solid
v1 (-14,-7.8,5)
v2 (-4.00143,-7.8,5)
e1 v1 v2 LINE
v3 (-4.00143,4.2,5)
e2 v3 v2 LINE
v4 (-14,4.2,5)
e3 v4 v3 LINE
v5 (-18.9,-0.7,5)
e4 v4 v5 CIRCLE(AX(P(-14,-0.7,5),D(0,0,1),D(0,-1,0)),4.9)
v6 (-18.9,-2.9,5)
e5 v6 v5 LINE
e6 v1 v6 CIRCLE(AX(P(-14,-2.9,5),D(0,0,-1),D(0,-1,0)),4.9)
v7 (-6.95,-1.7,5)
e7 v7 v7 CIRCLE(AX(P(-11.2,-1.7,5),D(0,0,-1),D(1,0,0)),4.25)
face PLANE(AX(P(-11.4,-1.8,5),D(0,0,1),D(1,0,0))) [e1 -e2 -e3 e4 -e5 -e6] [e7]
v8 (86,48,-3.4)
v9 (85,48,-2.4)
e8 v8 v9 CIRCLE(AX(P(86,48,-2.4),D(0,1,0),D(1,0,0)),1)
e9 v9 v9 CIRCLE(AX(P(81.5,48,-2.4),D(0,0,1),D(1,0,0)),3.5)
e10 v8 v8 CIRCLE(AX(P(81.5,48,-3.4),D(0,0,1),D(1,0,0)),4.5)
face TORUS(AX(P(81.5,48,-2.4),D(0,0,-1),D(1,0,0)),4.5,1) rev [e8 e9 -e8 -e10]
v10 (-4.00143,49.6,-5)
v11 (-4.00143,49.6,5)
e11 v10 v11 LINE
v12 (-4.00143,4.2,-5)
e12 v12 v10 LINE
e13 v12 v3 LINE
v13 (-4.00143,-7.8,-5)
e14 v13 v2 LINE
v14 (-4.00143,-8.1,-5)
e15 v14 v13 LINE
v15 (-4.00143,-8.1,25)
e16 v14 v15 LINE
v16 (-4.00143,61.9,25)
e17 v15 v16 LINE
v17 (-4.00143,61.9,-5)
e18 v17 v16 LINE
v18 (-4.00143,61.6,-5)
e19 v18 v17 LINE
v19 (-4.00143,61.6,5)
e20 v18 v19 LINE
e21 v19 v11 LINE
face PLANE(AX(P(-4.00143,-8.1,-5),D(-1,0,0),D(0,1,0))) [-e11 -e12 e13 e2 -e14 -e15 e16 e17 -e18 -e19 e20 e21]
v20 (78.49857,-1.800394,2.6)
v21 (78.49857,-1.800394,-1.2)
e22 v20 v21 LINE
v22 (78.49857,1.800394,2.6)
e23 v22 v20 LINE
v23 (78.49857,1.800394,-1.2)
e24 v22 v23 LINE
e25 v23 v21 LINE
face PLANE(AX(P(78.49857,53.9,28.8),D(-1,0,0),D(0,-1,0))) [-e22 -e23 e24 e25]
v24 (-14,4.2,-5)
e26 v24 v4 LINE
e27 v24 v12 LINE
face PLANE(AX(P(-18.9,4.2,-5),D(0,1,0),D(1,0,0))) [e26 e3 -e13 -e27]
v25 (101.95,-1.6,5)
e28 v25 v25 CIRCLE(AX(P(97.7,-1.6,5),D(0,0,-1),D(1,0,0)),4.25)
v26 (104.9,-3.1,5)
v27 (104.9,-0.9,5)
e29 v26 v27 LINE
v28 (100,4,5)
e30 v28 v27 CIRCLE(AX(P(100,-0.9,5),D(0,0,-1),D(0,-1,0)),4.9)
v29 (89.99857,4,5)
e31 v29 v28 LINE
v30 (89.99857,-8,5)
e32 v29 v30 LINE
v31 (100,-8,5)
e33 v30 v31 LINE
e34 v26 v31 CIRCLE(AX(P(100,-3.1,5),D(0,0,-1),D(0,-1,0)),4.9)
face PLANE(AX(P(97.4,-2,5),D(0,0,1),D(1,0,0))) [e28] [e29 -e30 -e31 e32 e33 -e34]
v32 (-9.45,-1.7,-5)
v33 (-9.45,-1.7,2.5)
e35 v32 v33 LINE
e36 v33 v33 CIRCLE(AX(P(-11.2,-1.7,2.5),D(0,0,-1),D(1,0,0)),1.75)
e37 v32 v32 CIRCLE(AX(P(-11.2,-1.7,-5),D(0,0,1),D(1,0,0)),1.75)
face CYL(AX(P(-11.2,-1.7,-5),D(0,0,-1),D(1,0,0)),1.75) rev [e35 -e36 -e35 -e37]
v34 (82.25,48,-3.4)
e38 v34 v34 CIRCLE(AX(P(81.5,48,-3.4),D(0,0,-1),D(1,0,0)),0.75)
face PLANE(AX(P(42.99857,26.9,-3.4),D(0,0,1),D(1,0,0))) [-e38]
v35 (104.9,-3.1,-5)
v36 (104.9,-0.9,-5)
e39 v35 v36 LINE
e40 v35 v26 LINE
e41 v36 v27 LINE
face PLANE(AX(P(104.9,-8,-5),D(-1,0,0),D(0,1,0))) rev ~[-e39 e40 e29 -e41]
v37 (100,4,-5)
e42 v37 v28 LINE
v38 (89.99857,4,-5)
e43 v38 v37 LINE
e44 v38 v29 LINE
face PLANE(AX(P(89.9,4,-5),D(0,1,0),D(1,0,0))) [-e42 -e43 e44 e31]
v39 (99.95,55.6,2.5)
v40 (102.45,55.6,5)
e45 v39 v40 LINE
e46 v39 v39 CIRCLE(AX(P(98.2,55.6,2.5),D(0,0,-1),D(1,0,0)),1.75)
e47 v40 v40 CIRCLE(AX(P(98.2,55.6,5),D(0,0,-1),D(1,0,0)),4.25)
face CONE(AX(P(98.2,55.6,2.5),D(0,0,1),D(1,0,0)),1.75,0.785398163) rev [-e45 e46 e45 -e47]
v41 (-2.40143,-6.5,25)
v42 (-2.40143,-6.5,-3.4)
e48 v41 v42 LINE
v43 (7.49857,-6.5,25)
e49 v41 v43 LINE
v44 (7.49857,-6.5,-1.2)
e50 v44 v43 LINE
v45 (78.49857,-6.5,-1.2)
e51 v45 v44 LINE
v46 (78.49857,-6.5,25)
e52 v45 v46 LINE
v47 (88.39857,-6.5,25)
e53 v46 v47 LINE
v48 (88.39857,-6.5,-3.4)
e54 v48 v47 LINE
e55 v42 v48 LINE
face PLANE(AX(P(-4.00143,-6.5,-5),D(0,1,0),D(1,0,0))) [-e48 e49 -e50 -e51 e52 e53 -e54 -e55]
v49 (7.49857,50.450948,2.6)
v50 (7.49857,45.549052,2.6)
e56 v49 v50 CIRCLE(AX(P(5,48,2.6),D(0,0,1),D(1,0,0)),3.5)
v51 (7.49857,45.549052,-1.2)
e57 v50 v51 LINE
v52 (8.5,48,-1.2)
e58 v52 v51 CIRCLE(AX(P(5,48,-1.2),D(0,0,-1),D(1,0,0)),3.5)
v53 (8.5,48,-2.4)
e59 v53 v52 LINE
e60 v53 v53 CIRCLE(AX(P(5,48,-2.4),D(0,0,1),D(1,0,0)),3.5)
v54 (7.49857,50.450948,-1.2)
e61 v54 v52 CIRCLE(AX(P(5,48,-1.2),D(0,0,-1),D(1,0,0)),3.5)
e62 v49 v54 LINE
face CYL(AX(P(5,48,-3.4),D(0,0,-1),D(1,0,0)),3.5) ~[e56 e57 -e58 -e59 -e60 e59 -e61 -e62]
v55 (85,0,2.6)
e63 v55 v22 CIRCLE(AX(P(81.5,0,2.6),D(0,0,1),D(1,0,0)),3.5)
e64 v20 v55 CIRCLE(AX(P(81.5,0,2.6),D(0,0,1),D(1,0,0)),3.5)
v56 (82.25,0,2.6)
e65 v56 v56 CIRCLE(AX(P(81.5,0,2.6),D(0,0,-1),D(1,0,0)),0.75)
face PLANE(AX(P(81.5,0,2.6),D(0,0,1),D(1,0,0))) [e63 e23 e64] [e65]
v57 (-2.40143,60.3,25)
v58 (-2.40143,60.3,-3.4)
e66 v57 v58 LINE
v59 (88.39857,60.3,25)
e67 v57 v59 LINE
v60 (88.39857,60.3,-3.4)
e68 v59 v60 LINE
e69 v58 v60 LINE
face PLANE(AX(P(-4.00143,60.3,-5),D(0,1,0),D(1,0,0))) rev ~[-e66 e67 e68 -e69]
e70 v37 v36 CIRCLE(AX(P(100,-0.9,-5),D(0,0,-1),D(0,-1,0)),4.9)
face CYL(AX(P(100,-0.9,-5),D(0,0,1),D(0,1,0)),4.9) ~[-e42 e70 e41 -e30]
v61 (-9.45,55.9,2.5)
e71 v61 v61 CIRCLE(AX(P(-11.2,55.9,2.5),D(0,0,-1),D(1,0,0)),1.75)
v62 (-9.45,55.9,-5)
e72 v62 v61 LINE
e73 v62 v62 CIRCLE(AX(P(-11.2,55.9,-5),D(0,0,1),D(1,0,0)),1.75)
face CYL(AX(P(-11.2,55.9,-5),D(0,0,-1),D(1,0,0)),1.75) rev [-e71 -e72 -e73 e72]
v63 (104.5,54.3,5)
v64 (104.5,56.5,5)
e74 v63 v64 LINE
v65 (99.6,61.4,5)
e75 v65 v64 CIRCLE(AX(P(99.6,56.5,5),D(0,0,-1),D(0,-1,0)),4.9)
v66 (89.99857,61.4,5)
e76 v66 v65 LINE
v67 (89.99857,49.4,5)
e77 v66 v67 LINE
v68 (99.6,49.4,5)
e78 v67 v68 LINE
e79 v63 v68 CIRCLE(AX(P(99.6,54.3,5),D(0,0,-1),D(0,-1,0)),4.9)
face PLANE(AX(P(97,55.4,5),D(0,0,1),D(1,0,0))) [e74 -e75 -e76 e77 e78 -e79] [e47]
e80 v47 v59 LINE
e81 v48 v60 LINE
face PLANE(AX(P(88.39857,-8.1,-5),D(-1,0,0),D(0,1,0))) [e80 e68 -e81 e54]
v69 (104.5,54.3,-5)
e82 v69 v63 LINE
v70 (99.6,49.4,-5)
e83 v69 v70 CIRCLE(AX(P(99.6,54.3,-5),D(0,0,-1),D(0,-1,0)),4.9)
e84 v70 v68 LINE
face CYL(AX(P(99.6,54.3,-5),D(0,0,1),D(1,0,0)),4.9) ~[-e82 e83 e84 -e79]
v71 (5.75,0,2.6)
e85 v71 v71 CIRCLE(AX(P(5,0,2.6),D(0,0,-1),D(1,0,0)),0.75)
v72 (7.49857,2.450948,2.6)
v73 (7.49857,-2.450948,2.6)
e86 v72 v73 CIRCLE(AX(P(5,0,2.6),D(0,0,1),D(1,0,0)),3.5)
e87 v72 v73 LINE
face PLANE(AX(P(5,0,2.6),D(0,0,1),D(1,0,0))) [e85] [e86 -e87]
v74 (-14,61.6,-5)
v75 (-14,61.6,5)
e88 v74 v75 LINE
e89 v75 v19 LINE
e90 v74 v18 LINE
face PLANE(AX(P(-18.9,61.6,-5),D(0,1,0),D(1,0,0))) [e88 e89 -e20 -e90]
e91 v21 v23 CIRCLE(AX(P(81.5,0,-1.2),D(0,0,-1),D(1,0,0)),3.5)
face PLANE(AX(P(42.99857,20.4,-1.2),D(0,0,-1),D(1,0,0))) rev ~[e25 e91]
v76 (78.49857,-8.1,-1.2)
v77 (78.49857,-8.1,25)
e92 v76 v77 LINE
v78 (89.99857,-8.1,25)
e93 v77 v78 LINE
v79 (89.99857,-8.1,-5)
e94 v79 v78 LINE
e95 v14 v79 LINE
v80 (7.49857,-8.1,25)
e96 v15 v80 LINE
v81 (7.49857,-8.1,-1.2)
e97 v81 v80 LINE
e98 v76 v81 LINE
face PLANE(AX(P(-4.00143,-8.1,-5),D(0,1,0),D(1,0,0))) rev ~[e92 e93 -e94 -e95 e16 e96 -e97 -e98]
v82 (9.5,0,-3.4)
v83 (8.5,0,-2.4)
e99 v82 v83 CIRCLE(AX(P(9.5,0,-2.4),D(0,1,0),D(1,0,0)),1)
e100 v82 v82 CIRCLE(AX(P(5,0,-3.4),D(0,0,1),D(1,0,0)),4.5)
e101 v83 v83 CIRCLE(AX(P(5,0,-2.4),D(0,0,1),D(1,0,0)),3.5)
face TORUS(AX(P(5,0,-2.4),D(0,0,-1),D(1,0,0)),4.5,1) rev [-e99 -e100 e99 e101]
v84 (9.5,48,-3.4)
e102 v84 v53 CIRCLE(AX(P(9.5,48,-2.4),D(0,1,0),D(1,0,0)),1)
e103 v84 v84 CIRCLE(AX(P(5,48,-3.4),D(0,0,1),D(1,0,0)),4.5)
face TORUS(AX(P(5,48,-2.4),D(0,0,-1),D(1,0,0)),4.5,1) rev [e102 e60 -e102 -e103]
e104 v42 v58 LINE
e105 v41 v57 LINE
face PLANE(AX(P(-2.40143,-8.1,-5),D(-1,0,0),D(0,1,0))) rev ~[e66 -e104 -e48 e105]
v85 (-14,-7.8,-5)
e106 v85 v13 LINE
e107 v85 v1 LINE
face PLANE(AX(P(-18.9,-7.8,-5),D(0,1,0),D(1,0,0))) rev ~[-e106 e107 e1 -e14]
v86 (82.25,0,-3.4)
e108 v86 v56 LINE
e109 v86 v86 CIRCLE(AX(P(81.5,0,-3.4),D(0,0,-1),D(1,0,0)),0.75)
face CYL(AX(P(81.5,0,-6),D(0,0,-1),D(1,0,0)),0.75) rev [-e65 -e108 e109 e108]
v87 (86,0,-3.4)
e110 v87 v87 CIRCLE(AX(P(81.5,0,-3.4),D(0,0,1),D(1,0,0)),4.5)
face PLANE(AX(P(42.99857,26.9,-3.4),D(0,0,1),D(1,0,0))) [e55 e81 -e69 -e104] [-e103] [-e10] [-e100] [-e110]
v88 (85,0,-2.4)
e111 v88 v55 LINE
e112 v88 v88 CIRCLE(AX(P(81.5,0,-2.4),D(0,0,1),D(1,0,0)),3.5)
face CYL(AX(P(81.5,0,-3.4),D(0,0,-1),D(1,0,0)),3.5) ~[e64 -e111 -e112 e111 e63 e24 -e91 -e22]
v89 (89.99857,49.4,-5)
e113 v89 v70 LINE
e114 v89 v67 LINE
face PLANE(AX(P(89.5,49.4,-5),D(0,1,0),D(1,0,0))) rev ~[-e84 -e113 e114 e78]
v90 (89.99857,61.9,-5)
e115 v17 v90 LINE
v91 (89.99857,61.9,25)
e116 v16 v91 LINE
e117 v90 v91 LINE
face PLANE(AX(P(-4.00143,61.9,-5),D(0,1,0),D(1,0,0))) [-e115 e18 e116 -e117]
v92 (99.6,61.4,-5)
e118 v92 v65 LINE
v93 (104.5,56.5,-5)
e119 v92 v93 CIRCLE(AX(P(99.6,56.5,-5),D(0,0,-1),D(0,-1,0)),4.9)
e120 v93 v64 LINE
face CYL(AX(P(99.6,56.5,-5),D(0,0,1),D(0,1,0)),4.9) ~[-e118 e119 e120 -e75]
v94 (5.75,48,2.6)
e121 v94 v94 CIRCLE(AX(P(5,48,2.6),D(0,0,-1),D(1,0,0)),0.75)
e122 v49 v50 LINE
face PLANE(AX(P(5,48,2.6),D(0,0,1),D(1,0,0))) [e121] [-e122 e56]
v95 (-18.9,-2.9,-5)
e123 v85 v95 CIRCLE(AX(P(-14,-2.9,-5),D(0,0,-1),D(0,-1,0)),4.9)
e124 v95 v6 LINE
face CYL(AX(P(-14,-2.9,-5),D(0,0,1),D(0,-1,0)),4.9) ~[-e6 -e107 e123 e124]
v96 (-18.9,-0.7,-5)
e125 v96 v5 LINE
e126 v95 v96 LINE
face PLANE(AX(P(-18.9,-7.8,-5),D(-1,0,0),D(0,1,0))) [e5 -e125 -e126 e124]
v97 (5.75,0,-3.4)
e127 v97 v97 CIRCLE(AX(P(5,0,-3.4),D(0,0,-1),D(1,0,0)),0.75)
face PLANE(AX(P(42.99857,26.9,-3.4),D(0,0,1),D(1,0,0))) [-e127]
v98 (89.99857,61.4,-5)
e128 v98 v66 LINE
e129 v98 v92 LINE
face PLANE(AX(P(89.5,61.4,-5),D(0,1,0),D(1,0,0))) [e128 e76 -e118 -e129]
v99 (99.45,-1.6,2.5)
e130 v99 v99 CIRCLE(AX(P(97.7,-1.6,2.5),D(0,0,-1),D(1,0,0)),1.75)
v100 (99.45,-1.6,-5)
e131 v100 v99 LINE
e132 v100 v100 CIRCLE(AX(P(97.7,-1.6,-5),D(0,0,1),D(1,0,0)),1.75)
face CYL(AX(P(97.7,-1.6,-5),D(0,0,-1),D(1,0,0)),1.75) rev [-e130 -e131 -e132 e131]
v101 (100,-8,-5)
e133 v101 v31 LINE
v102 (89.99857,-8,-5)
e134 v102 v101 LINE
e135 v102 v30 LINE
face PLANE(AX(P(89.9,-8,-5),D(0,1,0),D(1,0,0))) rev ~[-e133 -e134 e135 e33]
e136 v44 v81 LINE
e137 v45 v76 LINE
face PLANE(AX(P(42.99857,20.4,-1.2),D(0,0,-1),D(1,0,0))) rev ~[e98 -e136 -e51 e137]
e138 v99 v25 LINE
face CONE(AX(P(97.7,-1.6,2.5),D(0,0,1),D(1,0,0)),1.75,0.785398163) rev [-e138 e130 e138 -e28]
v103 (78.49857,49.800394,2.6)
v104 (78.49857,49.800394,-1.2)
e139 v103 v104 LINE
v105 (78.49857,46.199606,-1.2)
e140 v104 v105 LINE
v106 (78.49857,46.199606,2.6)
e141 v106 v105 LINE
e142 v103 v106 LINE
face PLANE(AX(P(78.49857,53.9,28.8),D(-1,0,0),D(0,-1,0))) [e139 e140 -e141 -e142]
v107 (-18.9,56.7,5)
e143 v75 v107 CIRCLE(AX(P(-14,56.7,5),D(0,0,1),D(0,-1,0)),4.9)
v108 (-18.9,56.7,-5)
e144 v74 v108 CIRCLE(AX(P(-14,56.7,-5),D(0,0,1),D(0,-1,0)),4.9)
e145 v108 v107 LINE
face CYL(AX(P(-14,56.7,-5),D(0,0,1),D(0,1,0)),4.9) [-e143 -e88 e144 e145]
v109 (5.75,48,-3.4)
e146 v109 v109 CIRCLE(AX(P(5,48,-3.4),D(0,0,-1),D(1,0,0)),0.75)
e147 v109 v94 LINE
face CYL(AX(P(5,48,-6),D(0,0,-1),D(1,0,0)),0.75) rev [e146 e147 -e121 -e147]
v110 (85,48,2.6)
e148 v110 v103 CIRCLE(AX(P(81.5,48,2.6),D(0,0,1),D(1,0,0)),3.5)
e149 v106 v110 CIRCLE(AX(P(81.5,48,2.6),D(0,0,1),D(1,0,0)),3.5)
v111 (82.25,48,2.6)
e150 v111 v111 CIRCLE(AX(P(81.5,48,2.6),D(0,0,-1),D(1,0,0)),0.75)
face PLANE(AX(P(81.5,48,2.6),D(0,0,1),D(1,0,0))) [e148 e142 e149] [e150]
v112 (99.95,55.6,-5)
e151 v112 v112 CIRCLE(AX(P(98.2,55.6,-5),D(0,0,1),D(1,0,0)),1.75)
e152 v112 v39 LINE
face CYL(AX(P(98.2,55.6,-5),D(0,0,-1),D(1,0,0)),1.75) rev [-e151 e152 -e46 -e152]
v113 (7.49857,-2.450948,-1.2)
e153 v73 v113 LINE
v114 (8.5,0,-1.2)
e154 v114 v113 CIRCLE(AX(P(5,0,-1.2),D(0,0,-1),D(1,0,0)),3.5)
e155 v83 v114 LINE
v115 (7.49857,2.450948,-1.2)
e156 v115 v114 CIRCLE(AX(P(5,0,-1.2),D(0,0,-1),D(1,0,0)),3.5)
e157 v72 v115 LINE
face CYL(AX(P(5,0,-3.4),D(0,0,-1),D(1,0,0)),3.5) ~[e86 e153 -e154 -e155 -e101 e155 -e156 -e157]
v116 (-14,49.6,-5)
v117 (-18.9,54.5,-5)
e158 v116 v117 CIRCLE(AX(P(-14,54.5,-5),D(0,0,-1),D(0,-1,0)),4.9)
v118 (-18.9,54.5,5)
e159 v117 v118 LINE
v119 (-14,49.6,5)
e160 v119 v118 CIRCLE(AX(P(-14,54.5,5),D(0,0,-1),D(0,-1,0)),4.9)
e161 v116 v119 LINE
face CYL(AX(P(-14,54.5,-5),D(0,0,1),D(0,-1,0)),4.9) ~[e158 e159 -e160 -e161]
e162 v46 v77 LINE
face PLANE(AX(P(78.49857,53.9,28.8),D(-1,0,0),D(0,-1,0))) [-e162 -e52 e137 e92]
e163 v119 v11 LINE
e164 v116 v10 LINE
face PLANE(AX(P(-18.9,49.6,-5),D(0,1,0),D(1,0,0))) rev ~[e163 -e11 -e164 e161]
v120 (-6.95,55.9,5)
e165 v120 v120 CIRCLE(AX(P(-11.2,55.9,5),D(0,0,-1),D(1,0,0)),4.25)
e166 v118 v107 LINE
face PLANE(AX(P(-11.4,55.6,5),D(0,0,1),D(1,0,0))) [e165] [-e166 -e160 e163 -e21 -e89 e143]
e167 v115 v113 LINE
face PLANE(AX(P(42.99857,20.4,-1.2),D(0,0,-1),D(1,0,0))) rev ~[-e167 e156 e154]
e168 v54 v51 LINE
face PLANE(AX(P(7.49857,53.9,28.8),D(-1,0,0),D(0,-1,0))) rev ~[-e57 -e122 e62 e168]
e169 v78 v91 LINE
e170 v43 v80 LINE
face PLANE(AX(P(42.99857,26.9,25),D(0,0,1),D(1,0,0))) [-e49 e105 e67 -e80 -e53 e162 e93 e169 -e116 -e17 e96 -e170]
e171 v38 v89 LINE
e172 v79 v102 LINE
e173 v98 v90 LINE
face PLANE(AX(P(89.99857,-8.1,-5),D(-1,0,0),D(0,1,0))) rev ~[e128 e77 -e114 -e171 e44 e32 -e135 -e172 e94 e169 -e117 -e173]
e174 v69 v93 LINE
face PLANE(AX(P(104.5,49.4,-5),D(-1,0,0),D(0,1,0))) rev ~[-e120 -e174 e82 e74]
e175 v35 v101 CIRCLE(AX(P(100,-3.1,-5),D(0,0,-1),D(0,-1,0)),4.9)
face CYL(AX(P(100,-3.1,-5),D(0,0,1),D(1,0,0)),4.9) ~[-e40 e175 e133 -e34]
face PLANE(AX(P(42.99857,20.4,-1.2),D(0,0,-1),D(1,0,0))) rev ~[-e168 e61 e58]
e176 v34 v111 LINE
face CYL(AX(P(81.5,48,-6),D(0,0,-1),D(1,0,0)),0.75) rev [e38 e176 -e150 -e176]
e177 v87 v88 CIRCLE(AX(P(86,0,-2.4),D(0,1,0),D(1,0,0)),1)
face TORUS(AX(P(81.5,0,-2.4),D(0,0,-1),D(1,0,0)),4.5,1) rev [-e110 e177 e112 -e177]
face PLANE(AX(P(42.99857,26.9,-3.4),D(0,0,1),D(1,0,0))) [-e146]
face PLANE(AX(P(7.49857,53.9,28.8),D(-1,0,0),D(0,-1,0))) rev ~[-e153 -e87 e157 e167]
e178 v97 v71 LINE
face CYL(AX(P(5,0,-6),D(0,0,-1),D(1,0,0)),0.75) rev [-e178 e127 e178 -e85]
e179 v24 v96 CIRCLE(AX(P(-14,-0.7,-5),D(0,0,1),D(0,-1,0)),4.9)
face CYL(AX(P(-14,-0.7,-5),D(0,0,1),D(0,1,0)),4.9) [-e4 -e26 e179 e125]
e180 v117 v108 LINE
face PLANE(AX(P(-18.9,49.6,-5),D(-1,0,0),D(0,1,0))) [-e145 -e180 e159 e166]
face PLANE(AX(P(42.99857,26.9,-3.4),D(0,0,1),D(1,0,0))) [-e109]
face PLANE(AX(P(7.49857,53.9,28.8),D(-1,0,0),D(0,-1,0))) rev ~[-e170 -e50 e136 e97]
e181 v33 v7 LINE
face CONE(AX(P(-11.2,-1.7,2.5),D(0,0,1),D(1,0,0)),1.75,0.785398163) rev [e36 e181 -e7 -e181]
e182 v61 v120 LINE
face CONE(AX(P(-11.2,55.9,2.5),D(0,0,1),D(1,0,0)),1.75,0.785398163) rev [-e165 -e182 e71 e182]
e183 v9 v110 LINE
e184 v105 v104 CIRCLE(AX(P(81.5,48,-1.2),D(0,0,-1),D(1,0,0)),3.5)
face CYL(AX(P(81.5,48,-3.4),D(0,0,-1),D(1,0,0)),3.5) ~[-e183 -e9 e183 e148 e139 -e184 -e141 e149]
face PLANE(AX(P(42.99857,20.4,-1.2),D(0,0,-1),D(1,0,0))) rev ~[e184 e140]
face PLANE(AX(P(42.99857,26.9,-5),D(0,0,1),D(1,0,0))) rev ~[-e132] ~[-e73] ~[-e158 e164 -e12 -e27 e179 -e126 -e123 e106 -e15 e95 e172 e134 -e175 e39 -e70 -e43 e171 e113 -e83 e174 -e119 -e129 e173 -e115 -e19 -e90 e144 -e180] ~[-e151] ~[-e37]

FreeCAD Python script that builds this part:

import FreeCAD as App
import Part
import Sketcher
Q = App.Units.Quantity


def edges_at(feature, points):
    """Names of the edges that pass closest to the given points."""
    edges = feature.Shape.Edges
    near = lambda p: min(range(len(edges)), key=lambda i: edges[i].distToShape(Part.Vertex(*p))[0])
    return sorted({f"Edge{near(p) + 1}" for p in points})


def faces_at(feature, points):
    """Names of the faces that lie closest to the given points."""
    faces = feature.Shape.Faces
    near = lambda p: min(range(len(faces)), key=lambda i: faces[i].distToShape(Part.Vertex(*p))[0])
    return sorted({f"Face{near(p) + 1}" for p in points})


def add_polygon(sketch, points):
    """Adds a closed chain of lines whose ends are joined by coincident constraints."""
    first, n = sketch.GeometryCount, len(points)
    for a, b in zip(points, points[1:] + points[:1]):
        sketch.addGeometry(Part.LineSegment(App.Vector(*a, 0), App.Vector(*b, 0)), False)
    for i in range(n):
        sketch.addConstraint(Sketcher.Constraint("Coincident", first + i, 2, first + (i + 1) % n, 1))

doc = App.newDocument("Part")
body = doc.addObject("PartDesign::Body", "Body")

# Sketch on XY plane
sketch1 = body.newObject("Sketcher::SketchObject", "Sketch")
sketch1.AttachmentSupport = (doc.getObject("XY_Plane"), [""])
sketch1.MapMode = "FlatFace"
sketch1.AttachmentOffset = App.Placement(App.Vector(0, 0, 26), App.Rotation())
add_polygon(sketch1, [(7.49857, -8.1), (7.49857, 58.9), (78.49857, 58.9), (78.49857, -8.1)])  # lines 0-3
sketch1.addConstraint([
    Sketcher.Constraint("Vertical", 0),
    Sketcher.Constraint("Horizontal", 1),
    Sketcher.Constraint("Vertical", 2),
    Sketcher.Constraint("Horizontal", 3),
    Sketcher.Constraint("DistanceX", 1, 1, 1, 2, Q("71 mm")),
    Sketcher.Constraint("DistanceY", 0, 1, 0, 2, Q("67 mm")),
    Sketcher.Constraint("DistanceY", -1, 1, 0, 2, Q("58.9 mm")),
    Sketcher.Constraint("DistanceX", -1, 1, 0, 2, Q("7.49857 mm")),
])
pad1 = body.newObject("PartDesign::Pad", "Pad")
pad1.Profile = sketch1
pad1.Length = 30
pad1.Reversed = True
body2 = doc.addObject("PartDesign::Body", "Body001")

# Sketch on XY plane
sketch2 = body2.newObject("Sketcher::SketchObject", "Sketch001")
sketch2.AttachmentSupport = (doc.getObject("XY_Plane001"), [""])
sketch2.MapMode = "FlatFace"
sketch2.addGeometry(Part.Circle(App.Vector(5, 53, 0), App.Vector(0, 0, 1), 1.5), False)
sketch2.addConstraint([
    Sketcher.Constraint("Diameter", 0, Q("3 mm")),
    Sketcher.Constraint("DistanceX", -1, 1, 0, 3, Q("5 mm")),
    Sketcher.Constraint("DistanceY", -1, 1, 0, 3, Q("53 mm")),
])
pad2 = body2.newObject("PartDesign::Pad", "Pad001")
pad2.Profile = sketch2
pad2.Length = 10
body3 = doc.addObject("PartDesign::Body", "Body002")

# Sketch on XY plane
sketch3 = body3.newObject("Sketcher::SketchObject", "Sketch002")
sketch3.AttachmentSupport = (doc.getObject("XY_Plane002"), [""])
sketch3.MapMode = "FlatFace"
sketch3.addGeometry(Part.Circle(App.Vector(81.5, 5, 0), App.Vector(0, 0, 1), 1.5), False)
sketch3.addConstraint([
    Sketcher.Constraint("Diameter", 0, Q("3 mm")),
    Sketcher.Constraint("DistanceY", -1, 1, 0, 3, Q("5 mm")),
    Sketcher.Constraint("DistanceX", -1, 1, 0, 3, Q("81.5 mm")),
])
pad3 = body3.newObject("PartDesign::Pad", "Pad002")
pad3.Profile = sketch3
pad3.Length = 10
body4 = doc.addObject("PartDesign::Body", "Body003")

# Sketch on XY plane
sketch4 = body4.newObject("Sketcher::SketchObject", "Sketch003")
sketch4.AttachmentSupport = (doc.getObject("XY_Plane003"), [""])
sketch4.MapMode = "FlatFace"
sketch4.addGeometry(Part.Circle(App.Vector(81.5, 53, 0), App.Vector(0, 0, 1), 1.5), False)
sketch4.addConstraint([
    Sketcher.Constraint("Diameter", 0, Q("3 mm")),
    Sketcher.Constraint("DistanceY", -1, 1, 0, 3, Q("53 mm")),
    Sketcher.Constraint("DistanceX", -1, 1, 0, 3, Q("81.5 mm")),
])
pad4 = body4.newObject("PartDesign::Pad", "Pad003")
pad4.Profile = sketch4
pad4.Length = 10
body5 = doc.addObject("PartDesign::Body", "Body004")
body5.AllowCompound = True

# Sketch on XY plane
sketch5 = body5.newObject("Sketcher::SketchObject", "Sketch004")
sketch5.AttachmentSupport = (doc.getObject("XY_Plane004"), [""])
sketch5.MapMode = "FlatFace"
sketch5.addGeometry(Part.Circle(App.Vector(5, 5, 0), App.Vector(0, 0, 1), 1.5), False)
sketch5.addConstraint([
    Sketcher.Constraint("Diameter", 0, Q("3 mm")),
    Sketcher.Constraint("DistanceX", -1, 1, 0, 3, Q("5 mm")),
    Sketcher.Constraint("DistanceY", -1, 1, 0, 3, Q("5 mm")),
])
pad5 = body5.newObject("PartDesign::Pad", "Pad004")
pad5.Profile = sketch5
pad5.Length = 10
doc.recompute()

boolean = body5.newObject("PartDesign::Boolean", "Boolean")
boolean.Type = "Fuse"
boolean.addObjects([body2])
doc.recompute()

boolean2 = body5.newObject("PartDesign::Boolean", "Boolean001")
boolean2.Type = "Fuse"
boolean2.addObjects([body3])
doc.recompute()

boolean3 = body5.newObject("PartDesign::Boolean", "Boolean002")
boolean3.Type = "Fuse"
boolean3.addObjects([body4])
body6 = doc.addObject("PartDesign::Body", "Body005")

# Sketch on XY plane
sketch6 = body6.newObject("Sketcher::SketchObject", "Sketch005")
sketch6.AttachmentSupport = (doc.getObject("XY_Plane005"), [""])
sketch6.MapMode = "FlatFace"
add_polygon(sketch6, [(0, 58), (0, 0), (86, 0), (86, 58)])  # lines 0-3
sketch6.addConstraint([
    Sketcher.Constraint("Vertical", 0),
    Sketcher.Constraint("Horizontal", 1),
    Sketcher.Constraint("Vertical", 2),
    Sketcher.Constraint("Horizontal", 3),
    Sketcher.Constraint("Coincident", 0, 2, -1, 1),
    Sketcher.Constraint("DistanceX", 1, 1, 1, 2, Q("86 mm")),
    Sketcher.Constraint("DistanceY", 0, 2, 0, 1, Q("58 mm")),
])
pad6 = body6.newObject("PartDesign::Pad", "Pad005")
pad6.Profile = sketch6
pad6.Length = 1.5
doc.recompute()

boolean4 = body6.newObject("PartDesign::Boolean", "Boolean003")
boolean4.Type = "Cut"
boolean4.addObjects([body5])
doc.recompute()

boolean5 = body6.newObject("PartDesign::Boolean", "Boolean004")
boolean5.Type = "Fuse"
boolean5.addObjects([body])
body7 = doc.addObject("PartDesign::Body", "Body006")
doc.recompute()

body6.Placement = App.Placement(App.Vector(0, -5, 2.8), App.Rotation(App.Vector(0, 0, 1), 0))
boolean6 = body7.newObject("PartDesign::Boolean", "Boolean005")
boolean6.Type = "Fuse"
boolean6.addObjects([body6])
body8 = doc.addObject("PartDesign::Body", "Body007")

# Sketch on XY plane
sketch7 = body8.newObject("Sketcher::SketchObject", "Sketch006")
sketch7.AttachmentSupport = (doc.getObject("XY_Plane007"), [""])
sketch7.MapMode = "FlatFace"
sketch7.AttachmentOffset = App.Placement(App.Vector(0, 0, -5), App.Rotation())
add_polygon(sketch7, [(-4.00143, 61.9), (-4.00143, -8.1), (89.99857, -8.1), (89.99857, 61.9)])  # lines 0-3
sketch7.addConstraint([
    Sketcher.Constraint("Vertical", 0),
    Sketcher.Constraint("Horizontal", 1),
    Sketcher.Constraint("Vertical", 2),
    Sketcher.Constraint("Horizontal", 3),
    Sketcher.Constraint("DistanceX", 1, 1, 1, 2, Q("94 mm")),
    Sketcher.Constraint("DistanceY", 0, 2, 0, 1, Q("70 mm")),
    Sketcher.Constraint("DistanceY", 0, 2, -1, 1, Q("8.1 mm")),
    Sketcher.Constraint("DistanceX", 0, 2, -1, 1, Q("4.00143 mm")),
])
pad7 = body8.newObject("PartDesign::Pad", "Pad006")
pad7.Profile = sketch7
pad7.Length = 30
doc.recompute()

thickness = body8.newObject("PartDesign::Thickness", "Thickness")
thickness.Base = (pad7, faces_at(pad7, [(42.999, 26.9, 25)]))
thickness.Value = 1.6
thickness.Reversed = True
thickness.Join = "Arc"
body9 = doc.addObject("PartDesign::Body", "Body008")

# Sketch on XY plane
sketch8 = body9.newObject("Sketcher::SketchObject", "Sketch007")
sketch8.AttachmentSupport = (doc.getObject("XY_Plane008"), [""])
sketch8.MapMode = "FlatFace"
sketch8.AttachmentOffset = App.Placement(App.Vector(0, 0, -6), App.Rotation())
sketch8.addGeometry(Part.Circle(App.Vector(5, 0, 0), App.Vector(0, 0, 1), 0.75), False)
sketch8.addConstraint([
    Sketcher.Constraint("PointOnObject", 0, 3, -1),
    Sketcher.Constraint("Diameter", 0, Q("1.5 mm")),
    Sketcher.Constraint("DistanceX", -1, 1, 0, 3, Q("5 mm")),
])
pad8 = body9.newObject("PartDesign::Pad", "Pad007")
pad8.Profile = sketch8
pad8.Length = 10
body10 = doc.addObject("PartDesign::Body", "Body009")

# Sketch on XY plane
sketch9 = body10.newObject("Sketcher::SketchObject", "Sketch008")
sketch9.AttachmentSupport = (doc.getObject("XY_Plane009"), [""])
sketch9.MapMode = "FlatFace"
sketch9.AttachmentOffset = App.Placement(App.Vector(0, 0, -3.4), App.Rotation())
sketch9.addGeometry(Part.Circle(App.Vector(5, 0, 0), App.Vector(0, 0, 1), 3.5), False)
sketch9.addConstraint([
    Sketcher.Constraint("PointOnObject", 0, 3, -1),
    Sketcher.Constraint("Diameter", 0, Q("7 mm")),
    Sketcher.Constraint("DistanceX", -1, 1, 0, 3, Q("5 mm")),
])
pad9 = body10.newObject("PartDesign::Pad", "Pad008")
pad9.Profile = sketch9
pad9.Length = 6
doc.recompute()

boolean7 = body10.newObject("PartDesign::Boolean", "Boolean006")
boolean7.Type = "Cut"
boolean7.addObjects([body9])
body11 = doc.addObject("PartDesign::Body", "Body010")

# Sketch on XY plane
sketch10 = body11.newObject("Sketcher::SketchObject", "Sketch009")
sketch10.AttachmentSupport = (doc.getObject("XY_Plane010"), [""])
sketch10.MapMode = "FlatFace"
sketch10.AttachmentOffset = App.Placement(App.Vector(0, 0, -6), App.Rotation())
sketch10.addGeometry(Part.Circle(App.Vector(5, 0, 0), App.Vector(0, 0, 1), 0.75), False)
sketch10.addConstraint([
    Sketcher.Constraint("PointOnObject", 0, 3, -1),
    Sketcher.Constraint("Diameter", 0, Q("1.5 mm")),
    Sketcher.Constraint("DistanceX", -1, 1, 0, 3, Q("5 mm")),
])
pad10 = body11.newObject("PartDesign::Pad", "Pad009")
pad10.Profile = sketch10
pad10.Length = 10
body12 = doc.addObject("PartDesign::Body", "Body011")

# Sketch on XY plane
sketch11 = body12.newObject("Sketcher::SketchObject", "Sketch010")
sketch11.AttachmentSupport = (doc.getObject("XY_Plane011"), [""])
sketch11.MapMode = "FlatFace"
sketch11.AttachmentOffset = App.Placement(App.Vector(0, 0, -3.4), App.Rotation())
sketch11.addGeometry(Part.Circle(App.Vector(5, 0, 0), App.Vector(0, 0, 1), 3.5), False)
sketch11.addConstraint([
    Sketcher.Constraint("PointOnObject", 0, 3, -1),
    Sketcher.Constraint("Diameter", 0, Q("7 mm")),
    Sketcher.Constraint("DistanceX", -1, 1, 0, 3, Q("5 mm")),
])
pad11 = body12.newObject("PartDesign::Pad", "Pad010")
pad11.Profile = sketch11
pad11.Length = 6
doc.recompute()

boolean8 = body12.newObject("PartDesign::Boolean", "Boolean007")
boolean8.Type = "Cut"
boolean8.addObjects([body11])
body13 = doc.addObject("PartDesign::Body", "Body012")
doc.recompute()

body12.Placement = App.Placement(App.Vector(0, 48, 0), App.Rotation(App.Vector(0, 0, 1), 0))
boolean9 = body13.newObject("PartDesign::Boolean", "Boolean008")
boolean9.Type = "Fuse"
boolean9.addObjects([body12])
body14 = doc.addObject("PartDesign::Body", "Body013")

# Sketch on XY plane
sketch12 = body14.newObject("Sketcher::SketchObject", "Sketch011")
sketch12.AttachmentSupport = (doc.getObject("XY_Plane013"), [""])
sketch12.MapMode = "FlatFace"
sketch12.AttachmentOffset = App.Placement(App.Vector(0, 0, -6), App.Rotation())
sketch12.addGeometry(Part.Circle(App.Vector(5, 0, 0), App.Vector(0, 0, 1), 0.75), False)
sketch12.addConstraint([
    Sketcher.Constraint("PointOnObject", 0, 3, -1),
    Sketcher.Constraint("Diameter", 0, Q("1.5 mm")),
    Sketcher.Constraint("DistanceX", -1, 1, 0, 3, Q("5 mm")),
])
pad12 = body14.newObject("PartDesign::Pad", "Pad011")
pad12.Profile = sketch12
pad12.Length = 10
body15 = doc.addObject("PartDesign::Body", "Body014")

# Sketch on XY plane
sketch13 = body15.newObject("Sketcher::SketchObject", "Sketch012")
sketch13.AttachmentSupport = (doc.getObject("XY_Plane014"), [""])
sketch13.MapMode = "FlatFace"
sketch13.AttachmentOffset = App.Placement(App.Vector(0, 0, -3.4), App.Rotation())
sketch13.addGeometry(Part.Circle(App.Vector(5, 0, 0), App.Vector(0, 0, 1), 3.5), False)
sketch13.addConstraint([
    Sketcher.Constraint("PointOnObject", 0, 3, -1),
    Sketcher.Constraint("Diameter", 0, Q("7 mm")),
    Sketcher.Constraint("DistanceX", -1, 1, 0, 3, Q("5 mm")),
])
pad13 = body15.newObject("PartDesign::Pad", "Pad012")
pad13.Profile = sketch13
pad13.Length = 6
doc.recompute()

boolean10 = body15.newObject("PartDesign::Boolean", "Boolean009")
boolean10.Type = "Cut"
boolean10.addObjects([body14])
body16 = doc.addObject("PartDesign::Body", "Body015")
doc.recompute()

body15.Placement = App.Placement(App.Vector(76.5, 48, 0), App.Rotation(App.Vector(0, 0, 1), 0))
boolean11 = body16.newObject("PartDesign::Boolean", "Boolean010")
boolean11.Type = "Fuse"
boolean11.addObjects([body15])
body17 = doc.addObject("PartDesign::Body", "Body016")

# Sketch on XY plane
sketch14 = body17.newObject("Sketcher::SketchObject", "Sketch013")
sketch14.AttachmentSupport = (doc.getObject("XY_Plane016"), [""])
sketch14.MapMode = "FlatFace"
sketch14.AttachmentOffset = App.Placement(App.Vector(0, 0, -6), App.Rotation())
sketch14.addGeometry(Part.Circle(App.Vector(5, 0, 0), App.Vector(0, 0, 1), 0.75), False)
sketch14.addConstraint([
    Sketcher.Constraint("PointOnObject", 0, 3, -1),
    Sketcher.Constraint("Diameter", 0, Q("1.5 mm")),
    Sketcher.Constraint("DistanceX", -1, 1, 0, 3, Q("5 mm")),
])
pad14 = body17.newObject("PartDesign::Pad", "Pad013")
pad14.Profile = sketch14
pad14.Length = 10
body18 = doc.addObject("PartDesign::Body", "Body017")

# Sketch on XY plane
sketch15 = body18.newObject("Sketcher::SketchObject", "Sketch014")
sketch15.AttachmentSupport = (doc.getObject("XY_Plane017"), [""])
sketch15.MapMode = "FlatFace"
sketch15.AttachmentOffset = App.Placement(App.Vector(0, 0, -3.4), App.Rotation())
sketch15.addGeometry(Part.Circle(App.Vector(5, 0, 0), App.Vector(0, 0, 1), 3.5), False)
sketch15.addConstraint([
    Sketcher.Constraint("PointOnObject", 0, 3, -1),
    Sketcher.Constraint("Diameter", 0, Q("7 mm")),
    Sketcher.Constraint("DistanceX", -1, 1, 0, 3, Q("5 mm")),
])
pad15 = body18.newObject("PartDesign::Pad", "Pad014")
pad15.Profile = sketch15
pad15.Length = 6
doc.recompute()

boolean12 = body18.newObject("PartDesign::Boolean", "Boolean011")
boolean12.Type = "Cut"
boolean12.addObjects([body17])
body19 = doc.addObject("PartDesign::Body", "Body018")
body19.AllowCompound = True
doc.recompute()

body18.Placement = App.Placement(App.Vector(76.5, 0, 0), App.Rotation(App.Vector(0, 0, 1), 0))
boolean13 = body19.newObject("PartDesign::Boolean", "Boolean012")
boolean13.Type = "Fuse"
boolean13.addObjects([body18])
doc.recompute()

boolean14 = body19.newObject("PartDesign::Boolean", "Boolean013")
boolean14.Type = "Fuse"
boolean14.addObjects([body10])
doc.recompute()

boolean15 = body19.newObject("PartDesign::Boolean", "Boolean014")
boolean15.Type = "Fuse"
boolean15.addObjects([body13])
doc.recompute()

boolean16 = body19.newObject("PartDesign::Boolean", "Boolean015")
boolean16.Type = "Fuse"
boolean16.addObjects([body16])
doc.recompute()

boolean17 = body19.newObject("PartDesign::Boolean", "Boolean016")
boolean17.Type = "Fuse"
boolean17.addObjects([body8])
doc.recompute()

fillet = body19.newObject("PartDesign::Fillet", "Fillet")
fillet.Base = (boolean17, edges_at(boolean17, [(1.5, 48, -3.4), (78, 48, -3.4)]))
fillet.Radius = 1
doc.recompute()

fillet2 = body19.newObject("PartDesign::Fillet", "Fillet001")
fillet2.Base = (fillet, edges_at(fillet, [(1.5, 0, -3.4), (78, 0, -3.4)]))
fillet2.Radius = 1
body20 = doc.addObject("PartDesign::Body", "Body019")

# Sketch on XY plane
sketch16 = body20.newObject("Sketcher::SketchObject", "Sketch015")
sketch16.AttachmentSupport = (doc.getObject("XY_Plane019"), [""])
sketch16.MapMode = "FlatFace"
sketch16.AttachmentOffset = App.Placement(App.Vector(0, 0, -5), App.Rotation())
sketch16.addGeometry(Part.Circle(App.Vector(98.2, 55.6, 0), App.Vector(0, 0, 1), 1.75), False)
sketch16.addConstraint([
    Sketcher.Constraint("Diameter", 0, Q("3.5 mm")),
    Sketcher.Constraint("DistanceX", -1, 1, 0, 3, Q("98.2 mm")),
    Sketcher.Constraint("DistanceY", -1, 1, 0, 3, Q("55.6 mm")),
])
pad16 = body20.newObject("PartDesign::Pad", "Pad015")
pad16.Profile = sketch16
pad16.Length = 20
body21 = doc.addObject("PartDesign::Body", "Body020")

# Sketch on XY plane
sketch17 = body21.newObject("Sketcher::SketchObject", "Sketch016")
sketch17.AttachmentSupport = (doc.getObject("XY_Plane020"), [""])
sketch17.MapMode = "FlatFace"
sketch17.AttachmentOffset = App.Placement(App.Vector(0, 0, -5), App.Rotation())
sketch17.addGeometry(Part.Circle(App.Vector(97.7, -1.6, 0), App.Vector(0, 0, 1), 1.75), False)
sketch17.addConstraint([
    Sketcher.Constraint("Diameter", 0, Q("3.5 mm")),
    Sketcher.Constraint("DistanceX", -1, 1, 0, 3, Q("97.7 mm")),
    Sketcher.Constraint("DistanceY", 0, 3, -1, 1, Q("1.6 mm")),
])
pad17 = body21.newObject("PartDesign::Pad", "Pad016")
pad17.Profile = sketch17
pad17.Length = 20
body22 = doc.addObject("PartDesign::Body", "Body021")

# Sketch on XY plane
sketch18 = body22.newObject("Sketcher::SketchObject", "Sketch017")
sketch18.AttachmentSupport = (doc.getObject("XY_Plane021"), [""])
sketch18.MapMode = "FlatFace"
sketch18.AttachmentOffset = App.Placement(App.Vector(0, 0, -5), App.Rotation())
sketch18.addGeometry(Part.Circle(App.Vector(-11.2, 55.9, 0), App.Vector(0, 0, 1), 1.75), False)
sketch18.addConstraint([
    Sketcher.Constraint("Diameter", 0, Q("3.5 mm")),
    Sketcher.Constraint("DistanceX", 0, 3, -1, 1, Q("11.2 mm")),
    Sketcher.Constraint("DistanceY", -1, 1, 0, 3, Q("55.9 mm")),
])
pad18 = body22.newObject("PartDesign::Pad", "Pad017")
pad18.Profile = sketch18
pad18.Length = 20
body23 = doc.addObject("PartDesign::Body", "Body022")
body23.AllowCompound = True

# Sketch on XY plane
sketch19 = body23.newObject("Sketcher::SketchObject", "Sketch018")
sketch19.AttachmentSupport = (doc.getObject("XY_Plane022"), [""])
sketch19.MapMode = "FlatFace"
sketch19.AttachmentOffset = App.Placement(App.Vector(0, 0, -5), App.Rotation())
sketch19.addGeometry(Part.Circle(App.Vector(-11.2, -1.7, 0), App.Vector(0, 0, 1), 1.75), False)
sketch19.addConstraint([
    Sketcher.Constraint("Diameter", 0, Q("3.5 mm")),
    Sketcher.Constraint("DistanceX", 0, 3, -1, 1, Q("11.2 mm")),
    Sketcher.Constraint("DistanceY", 0, 3, -1, 1, Q("1.7 mm")),
])
pad19 = body23.newObject("PartDesign::Pad", "Pad018")
pad19.Profile = sketch19
pad19.Length = 20
doc.recompute()

boolean18 = body23.newObject("PartDesign::Boolean", "Boolean017")
boolean18.Type = "Fuse"
boolean18.addObjects([body20])
doc.recompute()

boolean19 = body23.newObject("PartDesign::Boolean", "Boolean018")
boolean19.Type = "Fuse"
boolean19.addObjects([body21])
doc.recompute()

boolean20 = body23.newObject("PartDesign::Boolean", "Boolean019")
boolean20.Type = "Fuse"
boolean20.addObjects([body22])
body24 = doc.addObject("PartDesign::Body", "Body023")

# Sketch on XY plane
sketch20 = body24.newObject("Sketcher::SketchObject", "Sketch019")
sketch20.AttachmentSupport = (doc.getObject("XY_Plane023"), [""])
sketch20.MapMode = "FlatFace"
sketch20.AttachmentOffset = App.Placement(App.Vector(0, 0, -5), App.Rotation())
add_polygon(sketch20, [(-18.9, 61.6), (-18.9, 49.6), (-3.9, 49.6), (-3.9, 61.6)])  # lines 0-3
sketch20.addConstraint([
    Sketcher.Constraint("Vertical", 0),
    Sketcher.Constraint("Horizontal", 1),
    Sketcher.Constraint("Vertical", 2),
    Sketcher.Constraint("Horizontal", 3),
    Sketcher.Constraint("DistanceX", 1, 1, 1, 2, Q("15 mm")),
    Sketcher.Constraint("DistanceY", 0, 2, 0, 1, Q("12 mm")),
    Sketcher.Constraint("DistanceX", 0, 2, -1, 1, Q("18.9 mm")),
    Sketcher.Constraint("DistanceY", -1, 1, 0, 2, Q("49.6 mm")),
])
pad20 = body24.newObject("PartDesign::Pad", "Pad019")
pad20.Profile = sketch20
pad20.Length = 10
body25 = doc.addObject("PartDesign::Body", "Body024")

# Sketch on XY plane
sketch21 = body25.newObject("Sketcher::SketchObject", "Sketch020")
sketch21.AttachmentSupport = (doc.getObject("XY_Plane024"), [""])
sketch21.MapMode = "FlatFace"
sketch21.AttachmentOffset = App.Placement(App.Vector(0, 0, -5), App.Rotation())
add_polygon(sketch21, [(89.9, 4), (89.9, -8), (104.9, -8), (104.9, 4)])  # lines 0-3
sketch21.addConstraint([
    Sketcher.Constraint("Vertical", 0),
    Sketcher.Constraint("Horizontal", 1),
    Sketcher.Constraint("Vertical", 2),
    Sketcher.Constraint("Horizontal", 3),
    Sketcher.Constraint("DistanceX", 1, 1, 1, 2, Q("15 mm")),
    Sketcher.Constraint("DistanceY", 0, 2, 0, 1, Q("12 mm")),
    Sketcher.Constraint("DistanceY", 0, 2, -1, 1, Q("8 mm")),
    Sketcher.Constraint("DistanceX", -1, 1, 0, 2, Q("89.9 mm")),
])
pad21 = body25.newObject("PartDesign::Pad", "Pad020")
pad21.Profile = sketch21
pad21.Length = 10
body26 = doc.addObject("PartDesign::Body", "Body025")

# Sketch on XY plane
sketch22 = body26.newObject("Sketcher::SketchObject", "Sketch021")
sketch22.AttachmentSupport = (doc.getObject("XY_Plane025"), [""])
sketch22.MapMode = "FlatFace"
sketch22.AttachmentOffset = App.Placement(App.Vector(0, 0, -5), App.Rotation())
add_polygon(sketch22, [(89.5, 61.4), (89.5, 49.4), (104.5, 49.4), (104.5, 61.4)])  # lines 0-3
sketch22.addConstraint([
    Sketcher.Constraint("Vertical", 0),
    Sketcher.Constraint("Horizontal", 1),
    Sketcher.Constraint("Vertical", 2),
    Sketcher.Constraint("Horizontal", 3),
    Sketcher.Constraint("DistanceX", 1, 1, 1, 2, Q("15 mm")),
    Sketcher.Constraint("DistanceY", 0, 2, 0, 1, Q("12 mm")),
    Sketcher.Constraint("DistanceX", -1, 1, 0, 2, Q("89.5 mm")),
    Sketcher.Constraint("DistanceY", -1, 1, 0, 2, Q("49.4 mm")),
])
pad22 = body26.newObject("PartDesign::Pad", "Pad021")
pad22.Profile = sketch22
pad22.Length = 10
body27 = doc.addObject("PartDesign::Body", "Body026")
body27.AllowCompound = True

# Sketch on XY plane
sketch23 = body27.newObject("Sketcher::SketchObject", "Sketch022")
sketch23.AttachmentSupport = (doc.getObject("XY_Plane026"), [""])
sketch23.MapMode = "FlatFace"
sketch23.AttachmentOffset = App.Placement(App.Vector(0, 0, -5), App.Rotation())
add_polygon(sketch23, [(-18.9, 4.2), (-18.9, -7.8), (-3.9, -7.8), (-3.9, 4.2)])  # lines 0-3
sketch23.addConstraint([
    Sketcher.Constraint("Vertical", 0),
    Sketcher.Constraint("Horizontal", 1),
    Sketcher.Constraint("Vertical", 2),
    Sketcher.Constraint("Horizontal", 3),
    Sketcher.Constraint("DistanceX", 1, 1, 1, 2, Q("15 mm")),
    Sketcher.Constraint("DistanceY", 0, 2, 0, 1, Q("12 mm")),
    Sketcher.Constraint("DistanceX", 0, 2, -1, 1, Q("18.9 mm")),
    Sketcher.Constraint("DistanceY", 0, 2, -1, 1, Q("7.8 mm")),
])
pad23 = body27.newObject("PartDesign::Pad", "Pad022")
pad23.Profile = sketch23
pad23.Length = 10
doc.recompute()

boolean21 = body27.newObject("PartDesign::Boolean", "Boolean020")
boolean21.Type = "Fuse"
boolean21.addObjects([body24])
doc.recompute()

boolean22 = body27.newObject("PartDesign::Boolean", "Boolean021")
boolean22.Type = "Fuse"
boolean22.addObjects([body25])
doc.recompute()

boolean23 = body27.newObject("PartDesign::Boolean", "Boolean022")
boolean23.Type = "Fuse"
boolean23.addObjects([body26])
doc.recompute()

boolean24 = body27.newObject("PartDesign::Boolean", "Boolean023")
boolean24.Type = "Cut"
boolean24.addObjects([body23])
doc.recompute()

boolean25 = body27.newObject("PartDesign::Boolean", "Boolean024")
boolean25.Type = "Fuse"
boolean25.addObjects([body19])
doc.recompute()

fillet3 = body27.newObject("PartDesign::Fillet", "Fillet002")
fillet3.Base = (boolean25, edges_at(boolean25, [
    (-18.9, -7.8, 0),
    (-18.9, 4.2, 0),
    (-18.9, 61.6, 0),
    (-18.9, 49.6, 0),
]))
fillet3.Radius = 4.9
doc.recompute()

fillet4 = body27.newObject("PartDesign::Fillet", "Fillet003")
fillet4.Base = (fillet3, edges_at(fillet3, [
    (104.9, -8, 0),
    (104.9, 4, 0),
    (104.5, 61.4, 0),
    (104.5, 49.4, 0),
]))
fillet4.Radius = 4.9
doc.recompute()

chamfer = body27.newObject("PartDesign::Chamfer", "Chamfer")
chamfer.Base = (fillet4, edges_at(fillet4, [
    (-12.95, 55.9, 5),
    (-12.95, -1.7, 5),
    (96.45, 55.6, 5),
    (95.95, -1.6, 5),
]))
chamfer.Size = 2.5
doc.recompute()

boolean26 = body27.newObject("PartDesign::Boolean", "Boolean025")
boolean26.Type = "Cut"
boolean26.addObjects([body7])

doc.recompute()
